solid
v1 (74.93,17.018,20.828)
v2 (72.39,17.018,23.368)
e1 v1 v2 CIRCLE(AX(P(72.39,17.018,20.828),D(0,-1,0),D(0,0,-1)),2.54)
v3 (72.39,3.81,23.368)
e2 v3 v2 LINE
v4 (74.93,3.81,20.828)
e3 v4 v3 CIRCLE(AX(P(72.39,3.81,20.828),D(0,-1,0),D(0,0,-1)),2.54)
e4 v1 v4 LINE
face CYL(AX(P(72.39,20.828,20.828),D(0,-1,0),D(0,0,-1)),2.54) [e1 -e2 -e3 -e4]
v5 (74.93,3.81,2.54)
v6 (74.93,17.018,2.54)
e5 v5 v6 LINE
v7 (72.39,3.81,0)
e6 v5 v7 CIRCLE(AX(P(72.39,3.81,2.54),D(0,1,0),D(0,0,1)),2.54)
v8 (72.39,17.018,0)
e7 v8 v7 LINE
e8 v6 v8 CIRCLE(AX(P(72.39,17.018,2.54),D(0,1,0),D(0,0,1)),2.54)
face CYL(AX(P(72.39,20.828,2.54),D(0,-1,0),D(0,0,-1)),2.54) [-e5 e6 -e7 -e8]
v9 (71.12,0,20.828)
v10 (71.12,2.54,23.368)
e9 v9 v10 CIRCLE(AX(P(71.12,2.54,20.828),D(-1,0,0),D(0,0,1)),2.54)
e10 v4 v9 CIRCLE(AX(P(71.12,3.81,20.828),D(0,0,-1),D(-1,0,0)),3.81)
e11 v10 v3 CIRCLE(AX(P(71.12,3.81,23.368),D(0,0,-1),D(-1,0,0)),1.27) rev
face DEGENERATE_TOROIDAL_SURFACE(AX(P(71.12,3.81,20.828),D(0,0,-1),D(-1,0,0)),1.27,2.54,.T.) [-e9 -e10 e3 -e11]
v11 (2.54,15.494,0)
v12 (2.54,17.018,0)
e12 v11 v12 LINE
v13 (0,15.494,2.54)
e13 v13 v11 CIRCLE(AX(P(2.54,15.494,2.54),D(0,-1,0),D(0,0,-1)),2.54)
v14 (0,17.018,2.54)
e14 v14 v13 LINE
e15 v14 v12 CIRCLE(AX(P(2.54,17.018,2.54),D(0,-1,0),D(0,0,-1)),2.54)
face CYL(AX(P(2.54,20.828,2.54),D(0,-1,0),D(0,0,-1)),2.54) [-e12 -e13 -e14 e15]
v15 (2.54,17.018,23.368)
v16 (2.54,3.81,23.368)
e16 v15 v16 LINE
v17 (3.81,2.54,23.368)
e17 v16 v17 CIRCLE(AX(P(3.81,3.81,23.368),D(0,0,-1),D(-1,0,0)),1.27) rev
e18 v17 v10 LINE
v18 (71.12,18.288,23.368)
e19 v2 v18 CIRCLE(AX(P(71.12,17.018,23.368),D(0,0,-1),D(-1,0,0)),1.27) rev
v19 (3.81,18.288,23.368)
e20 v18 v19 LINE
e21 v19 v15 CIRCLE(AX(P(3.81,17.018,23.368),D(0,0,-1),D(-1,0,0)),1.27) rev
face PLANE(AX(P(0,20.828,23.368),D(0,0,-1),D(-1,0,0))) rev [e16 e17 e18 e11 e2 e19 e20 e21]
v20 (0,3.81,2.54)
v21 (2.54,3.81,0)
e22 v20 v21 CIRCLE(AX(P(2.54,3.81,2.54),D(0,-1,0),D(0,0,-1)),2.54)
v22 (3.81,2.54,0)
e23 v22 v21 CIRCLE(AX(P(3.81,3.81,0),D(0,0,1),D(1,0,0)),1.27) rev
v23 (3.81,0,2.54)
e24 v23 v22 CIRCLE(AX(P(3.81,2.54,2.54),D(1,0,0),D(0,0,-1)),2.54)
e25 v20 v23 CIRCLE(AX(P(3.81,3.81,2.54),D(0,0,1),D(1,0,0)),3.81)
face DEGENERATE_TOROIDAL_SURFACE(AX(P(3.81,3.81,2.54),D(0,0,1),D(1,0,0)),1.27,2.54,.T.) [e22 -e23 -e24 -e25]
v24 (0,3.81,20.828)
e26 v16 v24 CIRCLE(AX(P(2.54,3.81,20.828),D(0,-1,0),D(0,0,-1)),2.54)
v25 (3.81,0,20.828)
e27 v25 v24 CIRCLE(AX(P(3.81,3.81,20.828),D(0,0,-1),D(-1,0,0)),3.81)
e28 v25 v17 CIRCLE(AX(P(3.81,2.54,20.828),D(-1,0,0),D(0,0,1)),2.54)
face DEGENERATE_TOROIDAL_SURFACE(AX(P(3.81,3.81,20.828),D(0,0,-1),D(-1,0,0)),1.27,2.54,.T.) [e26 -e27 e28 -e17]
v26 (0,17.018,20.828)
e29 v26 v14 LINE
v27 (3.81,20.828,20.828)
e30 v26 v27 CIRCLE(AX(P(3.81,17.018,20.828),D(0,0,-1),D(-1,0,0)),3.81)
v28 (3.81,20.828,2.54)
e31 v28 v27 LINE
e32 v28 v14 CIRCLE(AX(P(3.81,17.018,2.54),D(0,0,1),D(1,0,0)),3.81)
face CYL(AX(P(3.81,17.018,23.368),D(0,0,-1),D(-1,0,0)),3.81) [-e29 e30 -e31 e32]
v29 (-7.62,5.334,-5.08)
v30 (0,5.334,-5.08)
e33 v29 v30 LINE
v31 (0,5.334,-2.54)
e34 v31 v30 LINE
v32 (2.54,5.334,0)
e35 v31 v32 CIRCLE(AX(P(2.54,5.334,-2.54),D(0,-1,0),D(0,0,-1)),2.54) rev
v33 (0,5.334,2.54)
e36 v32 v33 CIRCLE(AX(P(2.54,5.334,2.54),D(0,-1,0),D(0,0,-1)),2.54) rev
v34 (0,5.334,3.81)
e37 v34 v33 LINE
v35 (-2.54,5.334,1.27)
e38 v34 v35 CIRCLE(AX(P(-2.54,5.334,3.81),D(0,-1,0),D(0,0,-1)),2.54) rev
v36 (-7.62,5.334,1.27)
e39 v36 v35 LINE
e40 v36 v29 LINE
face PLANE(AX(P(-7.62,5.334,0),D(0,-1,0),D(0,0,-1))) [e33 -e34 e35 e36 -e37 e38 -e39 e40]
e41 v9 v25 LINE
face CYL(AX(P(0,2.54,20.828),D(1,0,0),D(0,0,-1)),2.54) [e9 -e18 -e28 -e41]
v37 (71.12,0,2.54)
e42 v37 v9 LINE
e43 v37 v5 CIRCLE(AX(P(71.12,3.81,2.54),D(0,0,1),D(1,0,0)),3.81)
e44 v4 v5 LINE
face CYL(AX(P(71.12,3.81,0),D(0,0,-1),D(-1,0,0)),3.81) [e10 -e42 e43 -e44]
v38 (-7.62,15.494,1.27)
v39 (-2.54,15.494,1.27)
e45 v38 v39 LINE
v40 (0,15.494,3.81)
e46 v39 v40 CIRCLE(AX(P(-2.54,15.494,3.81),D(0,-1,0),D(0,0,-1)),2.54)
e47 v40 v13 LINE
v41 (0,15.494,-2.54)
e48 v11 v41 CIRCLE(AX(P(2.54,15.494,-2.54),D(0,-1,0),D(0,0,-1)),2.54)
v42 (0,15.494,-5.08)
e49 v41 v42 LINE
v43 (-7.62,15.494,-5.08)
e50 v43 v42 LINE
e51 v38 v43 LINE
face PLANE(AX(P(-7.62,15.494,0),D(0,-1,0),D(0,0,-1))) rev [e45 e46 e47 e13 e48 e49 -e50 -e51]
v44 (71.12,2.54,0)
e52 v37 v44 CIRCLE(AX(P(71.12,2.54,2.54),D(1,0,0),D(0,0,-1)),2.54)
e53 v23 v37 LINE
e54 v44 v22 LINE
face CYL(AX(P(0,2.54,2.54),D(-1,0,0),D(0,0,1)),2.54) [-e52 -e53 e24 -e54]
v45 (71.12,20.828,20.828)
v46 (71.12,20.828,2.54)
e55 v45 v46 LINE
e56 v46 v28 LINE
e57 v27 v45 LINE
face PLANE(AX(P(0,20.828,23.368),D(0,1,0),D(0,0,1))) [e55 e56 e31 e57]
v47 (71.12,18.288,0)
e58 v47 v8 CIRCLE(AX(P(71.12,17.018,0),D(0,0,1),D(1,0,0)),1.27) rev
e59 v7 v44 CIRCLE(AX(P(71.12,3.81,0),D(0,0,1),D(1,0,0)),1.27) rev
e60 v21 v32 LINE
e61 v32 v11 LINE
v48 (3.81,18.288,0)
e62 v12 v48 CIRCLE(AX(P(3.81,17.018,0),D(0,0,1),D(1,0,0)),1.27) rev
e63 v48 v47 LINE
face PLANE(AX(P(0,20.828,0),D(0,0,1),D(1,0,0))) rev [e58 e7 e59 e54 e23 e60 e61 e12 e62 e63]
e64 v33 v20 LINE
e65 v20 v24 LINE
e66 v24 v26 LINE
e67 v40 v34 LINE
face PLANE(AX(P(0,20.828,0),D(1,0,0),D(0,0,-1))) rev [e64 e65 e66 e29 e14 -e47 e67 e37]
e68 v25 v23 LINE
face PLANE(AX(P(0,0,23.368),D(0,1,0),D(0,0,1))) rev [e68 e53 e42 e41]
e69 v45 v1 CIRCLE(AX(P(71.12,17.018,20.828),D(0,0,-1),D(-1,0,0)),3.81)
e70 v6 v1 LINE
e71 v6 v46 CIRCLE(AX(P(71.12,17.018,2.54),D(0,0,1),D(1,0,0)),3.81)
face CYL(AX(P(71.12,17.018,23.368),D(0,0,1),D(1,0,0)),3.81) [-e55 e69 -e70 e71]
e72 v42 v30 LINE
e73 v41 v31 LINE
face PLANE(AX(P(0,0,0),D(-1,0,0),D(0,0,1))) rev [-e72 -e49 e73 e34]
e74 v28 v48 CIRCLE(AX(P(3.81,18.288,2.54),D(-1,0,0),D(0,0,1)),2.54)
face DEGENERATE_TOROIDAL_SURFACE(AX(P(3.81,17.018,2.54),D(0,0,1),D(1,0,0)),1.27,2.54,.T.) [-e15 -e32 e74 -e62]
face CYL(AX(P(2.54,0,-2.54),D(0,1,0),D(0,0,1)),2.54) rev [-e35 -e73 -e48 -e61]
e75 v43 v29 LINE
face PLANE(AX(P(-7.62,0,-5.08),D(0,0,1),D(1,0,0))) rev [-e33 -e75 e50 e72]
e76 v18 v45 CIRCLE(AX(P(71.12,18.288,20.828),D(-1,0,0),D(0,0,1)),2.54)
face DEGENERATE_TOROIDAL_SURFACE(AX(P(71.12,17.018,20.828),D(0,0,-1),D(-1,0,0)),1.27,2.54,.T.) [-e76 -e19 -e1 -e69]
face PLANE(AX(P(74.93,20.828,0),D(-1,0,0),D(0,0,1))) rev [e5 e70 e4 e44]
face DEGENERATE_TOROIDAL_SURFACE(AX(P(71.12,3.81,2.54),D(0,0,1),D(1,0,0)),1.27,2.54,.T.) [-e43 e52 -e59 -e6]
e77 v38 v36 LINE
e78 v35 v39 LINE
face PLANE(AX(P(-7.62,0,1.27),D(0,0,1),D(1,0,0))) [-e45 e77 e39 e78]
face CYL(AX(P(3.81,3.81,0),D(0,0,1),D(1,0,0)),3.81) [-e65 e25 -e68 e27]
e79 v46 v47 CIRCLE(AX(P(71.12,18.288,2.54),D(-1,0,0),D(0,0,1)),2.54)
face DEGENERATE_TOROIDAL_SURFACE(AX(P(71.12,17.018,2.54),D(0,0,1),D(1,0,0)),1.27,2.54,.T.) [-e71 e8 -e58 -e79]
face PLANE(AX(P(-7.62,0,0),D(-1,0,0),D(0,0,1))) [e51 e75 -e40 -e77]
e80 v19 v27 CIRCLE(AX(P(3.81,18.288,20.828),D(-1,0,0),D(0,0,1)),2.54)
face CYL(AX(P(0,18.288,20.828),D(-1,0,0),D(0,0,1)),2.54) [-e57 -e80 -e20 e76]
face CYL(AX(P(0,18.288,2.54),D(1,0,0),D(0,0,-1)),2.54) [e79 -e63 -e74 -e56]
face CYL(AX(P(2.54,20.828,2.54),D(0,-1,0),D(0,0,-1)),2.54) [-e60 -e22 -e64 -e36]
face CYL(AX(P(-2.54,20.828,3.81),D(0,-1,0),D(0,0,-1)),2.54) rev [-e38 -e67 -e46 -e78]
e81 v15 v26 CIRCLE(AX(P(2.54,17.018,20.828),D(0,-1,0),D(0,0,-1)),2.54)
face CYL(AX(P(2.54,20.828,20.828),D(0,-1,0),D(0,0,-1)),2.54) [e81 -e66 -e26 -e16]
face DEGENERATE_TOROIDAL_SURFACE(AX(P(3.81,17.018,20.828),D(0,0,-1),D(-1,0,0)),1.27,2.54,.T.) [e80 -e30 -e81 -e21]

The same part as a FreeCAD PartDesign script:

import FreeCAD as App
import Part
import Sketcher
from FreeCAD import Vector
Q = App.Units.Quantity


def edges_at(feature, points):
    """Names of the edges that pass closest to the given points."""
    edges = feature.Shape.Edges
    near = lambda p: min(range(len(edges)), key=lambda i: edges[i].distToShape(Part.Vertex(*p))[0])
    return sorted({f"Edge{near(p) + 1}" for p in points})


def add_polygon(sketch, points):
    """Adds a closed chain of lines whose ends are joined by coincident constraints."""
    first, n = sketch.GeometryCount, len(points)
    for a, b in zip(points, points[1:] + points[:1]):
        sketch.addGeometry(Part.LineSegment(App.Vector(*a, 0), App.Vector(*b, 0)), False)
    for i in range(n):
        sketch.addConstraint(Sketcher.Constraint("Coincident", first + i, 2, first + (i + 1) % n, 1))

doc = App.newDocument("Part")
body = doc.addObject("PartDesign::Body", "Body")

# Sketch on XZ plane
sketch1 = body.newObject("Sketcher::SketchObject", "Sketch")
sketch1.AttachmentSupport = (doc.getObject("XZ_Plane"), [""])
sketch1.MapMode = "FlatFace"
add_polygon(sketch1, [(0, 0), (0, 23), (75, 23), (75, 0)])  # lines 0-3
sketch1.addConstraint(Sketcher.Constraint("Vertical", 0))
sketch1.addConstraint(Sketcher.Constraint("Horizontal", 1))
sketch1.addConstraint(Sketcher.Constraint("Vertical", 2))
sketch1.addConstraint(Sketcher.Constraint("Horizontal", 3))
sketch1.addConstraint(Sketcher.Constraint("Coincident", 3, 2, -1, 1))
sketch1.addConstraint(Sketcher.Constraint("DistanceX", 1, 1, 1, 2, Q("2.95 in")))
sketch1.addConstraint(Sketcher.Constraint("DistanceY", 0, 1, 0, 2, Q("0.92 in")))
pad1 = body.newObject("PartDesign::Pad", "Pad")
pad1.Profile = sketch1
pad1.Length = Q("0.82 in")
pad1.Reversed = True

# Sketch on YZ plane
sketch2 = body.newObject("Sketcher::SketchObject", "Sketch001")
sketch2.AttachmentSupport = (doc.getObject("YZ_Plane"), [""])
sketch2.MapMode = "FlatFace"
add_polygon(sketch2, [(15, -5), (5, -5), (5, 1), (15, 1)])  # lines 0-3
sketch2.addConstraint(Sketcher.Constraint("Horizontal", 0))
sketch2.addConstraint(Sketcher.Constraint("Vertical", 1))
sketch2.addConstraint(Sketcher.Constraint("Horizontal", 2))
sketch2.addConstraint(Sketcher.Constraint("Vertical", 3))
sketch2.addConstraint(Sketcher.Constraint("DistanceX", 0, 2, 0, 1, Q("0.4 in")))
sketch2.addConstraint(Sketcher.Constraint("DistanceY", 1, 1, 1, 2, Q("0.25 in")))
sketch2.addConstraint(Sketcher.Constraint("DistanceY", 0, 2, -1, 1, Q("0.2 in")))
sketch2.addConstraint(Sketcher.Constraint("DistanceX", -1, 1, 0, 2, Q("0.21 in")))
pad2 = body.newObject("PartDesign::Pad", "Pad001")
pad2.Profile = sketch2
pad2.Length = Q("0.3 in")
pad2.Reversed = True
doc.recompute()

fillet = body.newObject("PartDesign::Fillet", "Fillet")
fillet.Base = (pad2, edges_at(pad2, [(0, 10.414, 0), (0, 10.414, 1.27)]))
fillet.Radius = Q("0.1 in")
doc.recompute()

fillet2 = body.newObject("PartDesign::Fillet", "Fillet001")
fillet2.Base = (fillet, edges_at(fillet, [
    (74.93, 20.828, 11.684),
    (0, 20.828, 11.684),
    (74.93, 0, 11.684),
    (0, 0, 11.684),
]))
fillet2.Radius = Q("0.15 in")
doc.recompute()

fillet3 = body.newObject("PartDesign::Fillet", "Fillet002")
fillet3.Base = (fillet2, edges_at(fillet2, [
    (37.465, 20.828, 23.368),
    (37.465, 0, 23.368),
    (74.93, 10.414, 23.368),
    (0, 10.414, 23.368),
    (1.116, 1.116, 23.368),
    (73.814, 1.116, 23.368),
    (73.814, 19.712, 23.368),
    (1.116, 19.712, 23.368),
]))
fillet3.Radius = Q("0.1 in")
doc.recompute()

fillet4 = body.newObject("PartDesign::Fillet", "Fillet003")
fillet4.Base = (fillet3, edges_at(fillet3, [
    (0, 16.256, 0),
    (1.116, 19.712, 0),
    (37.465, 20.828, 0),
    (73.814, 19.712, 0),
    (74.93, 10.414, 0),
    (73.814, 1.116, 0),
    (0, 4.572, 0),
    (1.116, 1.116, 0),
    (37.465, 0, 0),
]))
fillet4.Radius = Q("0.1 in")

doc.recompute()
